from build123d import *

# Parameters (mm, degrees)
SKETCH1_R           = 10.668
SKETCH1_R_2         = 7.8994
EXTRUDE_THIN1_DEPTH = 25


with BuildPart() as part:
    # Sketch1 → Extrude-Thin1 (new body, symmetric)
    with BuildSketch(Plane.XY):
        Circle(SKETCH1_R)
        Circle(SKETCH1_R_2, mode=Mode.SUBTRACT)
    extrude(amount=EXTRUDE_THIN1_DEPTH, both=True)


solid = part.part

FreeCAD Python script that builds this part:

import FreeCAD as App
import Part
import Sketcher
from FreeCAD import Vector
Q = App.Units.Quantity

doc = App.newDocument("Part")
body = doc.addObject("PartDesign::Body", "Body")

sketch1 = body.newObject("Sketcher::SketchObject", "Sketch")
sketch1.AttachmentSupport = (doc.getObject("XY_Plane"), [""])
sketch1.MapMode = "FlatFace"
sketch1.addGeometry([
    Part.Circle(Vector(0, 0, 0), Vector(0, 0, 1), 11),
    Part.Circle(Vector(0, 0, 0), Vector(0, 0, 1), 8),
], False)
sketch1.addConstraint([
    Sketcher.Constraint("Coincident", 0, 3, -1, 1),
    Sketcher.Constraint("Coincident", 1, 3, -1, 1),
    Sketcher.Constraint("Diameter", 0, Q("0.84 in")),
    Sketcher.Constraint("Diameter", 1, Q("0.622 in")),
])
pad1 = body.newObject("PartDesign::Pad", "Pad")
pad1.Profile = sketch1
pad1.Length = 50
pad1.Midplane = True

doc.recompute()
